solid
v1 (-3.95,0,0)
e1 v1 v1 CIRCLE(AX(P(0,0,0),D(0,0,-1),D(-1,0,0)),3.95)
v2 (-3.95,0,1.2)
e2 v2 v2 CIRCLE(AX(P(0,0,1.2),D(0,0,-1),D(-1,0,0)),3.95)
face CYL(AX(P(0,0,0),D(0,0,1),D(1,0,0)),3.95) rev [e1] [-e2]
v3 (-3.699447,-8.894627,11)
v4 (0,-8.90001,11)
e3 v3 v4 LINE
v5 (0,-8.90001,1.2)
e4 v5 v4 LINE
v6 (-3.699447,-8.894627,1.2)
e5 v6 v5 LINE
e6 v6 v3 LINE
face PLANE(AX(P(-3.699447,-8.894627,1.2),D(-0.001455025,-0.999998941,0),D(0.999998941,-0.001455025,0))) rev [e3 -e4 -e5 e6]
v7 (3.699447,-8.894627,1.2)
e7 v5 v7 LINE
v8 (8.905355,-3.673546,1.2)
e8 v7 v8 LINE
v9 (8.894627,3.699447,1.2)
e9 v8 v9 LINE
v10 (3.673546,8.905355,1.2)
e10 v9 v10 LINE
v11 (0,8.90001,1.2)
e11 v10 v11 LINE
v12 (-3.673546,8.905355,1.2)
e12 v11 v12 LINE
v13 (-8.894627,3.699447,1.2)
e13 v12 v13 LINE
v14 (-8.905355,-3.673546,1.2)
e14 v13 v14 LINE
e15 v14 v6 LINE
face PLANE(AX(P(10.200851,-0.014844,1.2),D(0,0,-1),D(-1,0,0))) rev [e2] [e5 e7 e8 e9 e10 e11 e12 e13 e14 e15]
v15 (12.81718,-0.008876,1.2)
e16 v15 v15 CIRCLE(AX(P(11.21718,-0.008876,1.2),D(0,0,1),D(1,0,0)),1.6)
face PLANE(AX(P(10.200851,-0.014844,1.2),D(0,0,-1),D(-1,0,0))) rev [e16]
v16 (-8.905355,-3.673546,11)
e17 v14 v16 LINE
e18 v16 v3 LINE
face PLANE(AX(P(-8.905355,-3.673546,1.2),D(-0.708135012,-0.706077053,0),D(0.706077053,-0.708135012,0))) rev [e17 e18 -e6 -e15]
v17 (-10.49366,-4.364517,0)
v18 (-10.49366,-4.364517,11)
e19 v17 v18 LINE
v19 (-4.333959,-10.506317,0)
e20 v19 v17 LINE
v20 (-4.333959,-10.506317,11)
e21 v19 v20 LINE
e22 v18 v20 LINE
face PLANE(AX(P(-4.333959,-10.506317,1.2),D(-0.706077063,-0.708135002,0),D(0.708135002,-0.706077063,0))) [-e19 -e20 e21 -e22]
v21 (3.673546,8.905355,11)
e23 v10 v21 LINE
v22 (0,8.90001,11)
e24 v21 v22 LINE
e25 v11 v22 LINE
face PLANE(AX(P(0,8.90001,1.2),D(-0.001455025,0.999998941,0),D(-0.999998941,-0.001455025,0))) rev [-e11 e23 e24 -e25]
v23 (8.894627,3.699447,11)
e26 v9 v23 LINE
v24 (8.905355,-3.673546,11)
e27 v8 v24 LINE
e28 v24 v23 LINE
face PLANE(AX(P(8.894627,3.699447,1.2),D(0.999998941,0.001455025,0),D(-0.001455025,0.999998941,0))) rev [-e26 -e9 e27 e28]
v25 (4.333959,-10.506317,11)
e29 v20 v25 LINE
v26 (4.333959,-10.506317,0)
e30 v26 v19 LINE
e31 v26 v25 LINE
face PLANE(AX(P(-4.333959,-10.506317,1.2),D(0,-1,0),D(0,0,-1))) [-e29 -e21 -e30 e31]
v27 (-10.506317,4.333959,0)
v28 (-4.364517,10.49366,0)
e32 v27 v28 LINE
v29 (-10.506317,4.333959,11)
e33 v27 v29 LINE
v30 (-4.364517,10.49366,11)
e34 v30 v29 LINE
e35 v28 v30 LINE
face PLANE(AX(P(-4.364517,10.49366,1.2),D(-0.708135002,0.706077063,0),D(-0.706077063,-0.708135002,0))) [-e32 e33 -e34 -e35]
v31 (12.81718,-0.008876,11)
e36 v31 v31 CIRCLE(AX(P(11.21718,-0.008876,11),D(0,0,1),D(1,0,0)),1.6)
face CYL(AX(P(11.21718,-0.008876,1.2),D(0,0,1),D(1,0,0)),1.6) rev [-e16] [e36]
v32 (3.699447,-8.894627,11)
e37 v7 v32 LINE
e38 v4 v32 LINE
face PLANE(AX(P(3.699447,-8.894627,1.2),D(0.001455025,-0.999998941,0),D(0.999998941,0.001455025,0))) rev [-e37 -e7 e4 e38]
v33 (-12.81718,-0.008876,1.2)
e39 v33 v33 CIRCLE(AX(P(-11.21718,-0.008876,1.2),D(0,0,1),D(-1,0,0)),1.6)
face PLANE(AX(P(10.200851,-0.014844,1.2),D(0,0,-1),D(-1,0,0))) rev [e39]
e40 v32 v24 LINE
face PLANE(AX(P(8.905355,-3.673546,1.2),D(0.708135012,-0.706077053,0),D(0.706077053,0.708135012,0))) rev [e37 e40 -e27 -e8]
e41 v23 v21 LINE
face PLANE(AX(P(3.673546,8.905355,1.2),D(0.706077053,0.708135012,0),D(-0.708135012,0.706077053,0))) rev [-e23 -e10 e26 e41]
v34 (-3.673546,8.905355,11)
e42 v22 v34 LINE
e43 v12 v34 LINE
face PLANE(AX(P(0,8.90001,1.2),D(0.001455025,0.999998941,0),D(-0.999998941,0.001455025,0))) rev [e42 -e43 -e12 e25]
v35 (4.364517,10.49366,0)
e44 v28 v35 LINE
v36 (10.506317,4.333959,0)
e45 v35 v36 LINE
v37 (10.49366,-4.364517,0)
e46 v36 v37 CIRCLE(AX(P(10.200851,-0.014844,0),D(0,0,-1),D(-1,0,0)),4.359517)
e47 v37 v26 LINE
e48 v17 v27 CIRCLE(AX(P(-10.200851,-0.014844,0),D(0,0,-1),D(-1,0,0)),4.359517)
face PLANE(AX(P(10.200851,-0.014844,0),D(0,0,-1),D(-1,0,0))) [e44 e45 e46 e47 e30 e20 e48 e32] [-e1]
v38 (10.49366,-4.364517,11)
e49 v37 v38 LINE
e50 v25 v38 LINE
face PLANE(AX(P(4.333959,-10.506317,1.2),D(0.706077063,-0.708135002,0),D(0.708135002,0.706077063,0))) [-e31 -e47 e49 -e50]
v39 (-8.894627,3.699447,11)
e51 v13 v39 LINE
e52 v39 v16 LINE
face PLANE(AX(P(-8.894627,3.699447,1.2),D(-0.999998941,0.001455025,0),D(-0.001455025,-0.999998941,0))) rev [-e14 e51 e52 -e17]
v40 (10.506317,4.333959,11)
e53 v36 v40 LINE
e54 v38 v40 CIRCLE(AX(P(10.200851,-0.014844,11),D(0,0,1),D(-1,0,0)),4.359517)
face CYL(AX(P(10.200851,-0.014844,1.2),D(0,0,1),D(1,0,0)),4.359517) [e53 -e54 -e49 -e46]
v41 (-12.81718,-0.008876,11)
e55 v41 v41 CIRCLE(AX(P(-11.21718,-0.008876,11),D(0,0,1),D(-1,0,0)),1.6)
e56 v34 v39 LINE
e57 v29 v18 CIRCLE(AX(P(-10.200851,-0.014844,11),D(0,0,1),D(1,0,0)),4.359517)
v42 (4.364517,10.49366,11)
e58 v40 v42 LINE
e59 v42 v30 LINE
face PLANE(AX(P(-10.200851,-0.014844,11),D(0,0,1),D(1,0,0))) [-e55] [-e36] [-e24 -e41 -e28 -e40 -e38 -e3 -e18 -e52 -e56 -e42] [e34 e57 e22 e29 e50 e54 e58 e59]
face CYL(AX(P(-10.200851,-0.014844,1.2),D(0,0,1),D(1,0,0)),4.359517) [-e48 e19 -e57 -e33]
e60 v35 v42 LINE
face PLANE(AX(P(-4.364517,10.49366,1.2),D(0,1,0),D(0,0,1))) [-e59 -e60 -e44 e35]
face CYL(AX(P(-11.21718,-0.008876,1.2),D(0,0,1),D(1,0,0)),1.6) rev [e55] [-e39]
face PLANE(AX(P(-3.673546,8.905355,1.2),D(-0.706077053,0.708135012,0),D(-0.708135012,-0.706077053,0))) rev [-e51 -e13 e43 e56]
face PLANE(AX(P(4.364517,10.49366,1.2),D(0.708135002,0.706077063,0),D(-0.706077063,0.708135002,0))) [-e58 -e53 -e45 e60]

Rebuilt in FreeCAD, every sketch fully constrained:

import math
import FreeCAD as App
import Part
import Sketcher
from FreeCAD import Vector
Q = App.Units.Quantity


def add_polygon(sketch, points):
    """Adds a closed chain of lines whose ends are joined by coincident constraints."""
    first, n = sketch.GeometryCount, len(points)
    for a, b in zip(points, points[1:] + points[:1]):
        sketch.addGeometry(Part.LineSegment(App.Vector(*a, 0), App.Vector(*b, 0)), False)
    for i in range(n):
        sketch.addConstraint(Sketcher.Constraint("Coincident", first + i, 2, first + (i + 1) % n, 1))

doc = App.newDocument("Part")
body = doc.addObject("PartDesign::Body", "Body")

# Sketch on XY plane
sketch1 = body.newObject("Sketcher::SketchObject", "Sketch")
sketch1.AttachmentSupport = (doc.getObject("XY_Plane"), [""])
sketch1.MapMode = "FlatFace"
sketch1.AttachmentOffset = App.Placement(Vector(0, 0, 11), App.Rotation())
sketch1.addGeometry(Part.LineSegment(Vector(4.3, -10.5, 0), Vector(10.5, -4.4, 0)), False)  # 0
sketch1.addGeometry(Part.ArcOfCircle(Part.Circle(Vector(10.2, 0, 0), Vector(0, 0, 1), 4.4), math.radians(-86), math.radians(86)), False)  # 1
sketch1.addGeometry(Part.LineSegment(Vector(10.5, 4.3, 0), Vector(4.4, 10.5, 0)), False)  # 2
sketch1.addGeometry(Part.LineSegment(Vector(4.4, 10.5, 0), Vector(-4.4, 10.5, 0)), False)  # 3
sketch1.addGeometry(Part.LineSegment(Vector(-4.4, 10.5, 0), Vector(-10.5, 4.3, 0)), False)  # 4
sketch1.addGeometry(Part.ArcOfCircle(Part.Circle(Vector(-10.2, 0, 0), Vector(0, 0, 1), 4.4), math.radians(94), math.radians(266)), False)  # 5
sketch1.addGeometry(Part.LineSegment(Vector(-10.5, -4.4, 0), Vector(-4.3, -10.5, 0)), False)  # 6
sketch1.addGeometry(Part.LineSegment(Vector(-4.3, -10.5, 0), Vector(4.3, -10.5, 0)), False)  # 7
sketch1.addGeometry(Part.Circle(Vector(-11.2, 0, 0), Vector(0, 0, 1), 1.6), False)  # 8
sketch1.addGeometry(Part.Circle(Vector(11.2, 0, 0), Vector(0, 0, 1), 1.6), False)  # 9
add_polygon(sketch1, [(-3.7, 8.9), (0, 8.9), (3.7, 8.9), (8.9, 3.7), (8.9, -3.7), (3.7, -8.9), (0, -8.9), (-3.7, -8.9), (-8.9, -3.7), (-8.9, 3.7)])  # lines 10-19
sketch1.addConstraint([
    Sketcher.Constraint("Coincident", 0, 2, 1, 1),
    Sketcher.Constraint("Coincident", 1, 2, 2, 1),
    Sketcher.Constraint("Coincident", 2, 2, 3, 1),
    Sketcher.Constraint("Coincident", 3, 2, 4, 1),
    Sketcher.Constraint("Coincident", 4, 2, 5, 1),
    Sketcher.Constraint("Coincident", 5, 2, 6, 1),
    Sketcher.Constraint("Coincident", 6, 2, 7, 1),
    Sketcher.Constraint("Coincident", 7, 2, 0, 1),
    Sketcher.Constraint("Horizontal", 3),
    Sketcher.Constraint("Horizontal", 7),
    Sketcher.Constraint("Equal", 1, 5),
    Sketcher.Constraint("Equal", 8, 9),
    Sketcher.Constraint("Symmetric", 10, 2, 15, 2, -1, 1),
    Sketcher.Constraint("Symmetric", 1, 3, 5, 3, -2),
    Sketcher.Constraint("Symmetric", 8, 3, 9, 3, -2),
    Sketcher.Constraint("Symmetric", 14, 2, 16, 2, -2),
    Sketcher.Constraint("Symmetric", 13, 2, 17, 2, -2),
    Sketcher.Constraint("Symmetric", 12, 2, 18, 2, -2),
    Sketcher.Constraint("Symmetric", 11, 2, 19, 2, -2),
    Sketcher.Constraint("PointOnObject", 10, 2, -2),
    Sketcher.Constraint("Perpendicular", 0, 2),
    Sketcher.Constraint("Perpendicular", 4, 6),
    Sketcher.Constraint("Parallel", 6, 12),
    Sketcher.Constraint("Perpendicular", 11, 13),
    Sketcher.Constraint("Perpendicular", 12, 14),
    Sketcher.Constraint("Perpendicular", 13, 15),
    Sketcher.Constraint("Parallel", 2, 17),
    Sketcher.Constraint("Horizontal", 1, 2, 4, 2),
    Sketcher.Constraint("Horizontal", 0, 2, 5, 2),
    Sketcher.Constraint("Equal", 0, 2),
    Sketcher.Constraint("Equal", 12, 13),
    Sketcher.Constraint("Equal", 13, 14),
    Sketcher.Constraint("Diameter", 8, Q("3.2 mm")),
    Sketcher.Constraint("Distance", 12, Q("7.373002 mm")),
    Sketcher.Constraint("Radius", 1, Q("4.359517 mm")),
    Sketcher.Constraint("DistanceX", 2, 2, 1, 2, Q("6.1418 mm")),
    Sketcher.Constraint("DistanceY", 1, 2, 2, 2, Q("6.159701 mm")),
    Sketcher.Constraint("DistanceY", 1, 3, 11, 2, Q("8.920198 mm")),
    Sketcher.Constraint("Distance", 10, Q("3.67355 mm")),
    Sketcher.Constraint("Distance", 15, Q("3.699451 mm")),
    Sketcher.Constraint("DistanceX", 3, 2, 3, 1, Q("8.729033 mm")),
    Sketcher.Constraint("DistanceX", 7, 1, 7, 2, Q("8.667918 mm")),
    Sketcher.Constraint("DistanceX", -1, 1, 1, 3, Q("10.200851 mm")),
    Sketcher.Constraint("DistanceX", 8, 3, -1, 1, Q("11.21718 mm")),
    Sketcher.Constraint("DistanceY", 0, 2, 9, 3, Q("4.35564 mm")),
])
pad1 = body.newObject("PartDesign::Pad", "Pad")
pad1.Profile = sketch1
pad1.Length = 9.8
pad1.Reversed = True

# Sketch on XY plane
sketch2 = body.newObject("Sketcher::SketchObject", "Sketch001")
sketch2.AttachmentSupport = (doc.getObject("XY_Plane"), [""])
sketch2.MapMode = "FlatFace"
sketch2.AttachmentOffset = App.Placement(Vector(0, 0, 1.2), App.Rotation())
sketch2.addGeometry([
    Part.LineSegment(Vector(-4.4, 10.5, 0), Vector(4.4, 10.5, 0)),  # 0
    Part.LineSegment(Vector(4.4, 10.5, 0), Vector(10.5, 4.3, 0)),  # 1
    Part.ArcOfCircle(Part.Circle(Vector(10.2, 0, 0), Vector(0, 0, 1), 4.4), math.radians(-86), math.radians(86)),  # 2
    Part.LineSegment(Vector(10.5, -4.4, 0), Vector(4.3, -10.5, 0)),  # 3
    Part.LineSegment(Vector(4.3, -10.5, 0), Vector(-4.3, -10.5, 0)),  # 4
    Part.LineSegment(Vector(-4.3, -10.5, 0), Vector(-10.5, -4.4, 0)),  # 5
    Part.ArcOfCircle(Part.Circle(Vector(-10.2, 0, 0), Vector(0, 0, 1), 4.4), math.radians(94), math.radians(266)),  # 6
    Part.LineSegment(Vector(-10.5, 4.3, 0), Vector(-4.4, 10.5, 0)),  # 7
    Part.Circle(Vector(0, 0, 0), Vector(0, 0, 1), 3.9),  # 8
], False)
sketch2.addConstraint([
    Sketcher.Constraint("Coincident", 0, 2, 1, 1),
    Sketcher.Constraint("Coincident", 1, 2, 2, 2),
    Sketcher.Constraint("Coincident", 2, 1, 3, 1),
    Sketcher.Constraint("Coincident", 3, 2, 4, 1),
    Sketcher.Constraint("Coincident", 4, 2, 5, 1),
    Sketcher.Constraint("Coincident", 5, 2, 6, 2),
    Sketcher.Constraint("Coincident", 6, 1, 7, 1),
    Sketcher.Constraint("Coincident", 7, 2, 0, 1),
    Sketcher.Constraint("Horizontal", 0),
    Sketcher.Constraint("Horizontal", 4),
    Sketcher.Constraint("Coincident", 8, 3, -1, 1),
    Sketcher.Constraint("Equal", 2, 6),
    Sketcher.Constraint("Symmetric", 2, 3, 6, 3, -2),
    Sketcher.Constraint("Perpendicular", 1, 3),
    Sketcher.Constraint("Perpendicular", 5, 7),
    Sketcher.Constraint("Horizontal", 2, 1, 5, 2),
    Sketcher.Constraint("Horizontal", 1, 2, 6, 1),
    Sketcher.Constraint("Equal", 1, 3),
    Sketcher.Constraint("Equal", 3, 5),
    Sketcher.Constraint("Diameter", 8, Q("7.9 mm")),
    Sketcher.Constraint("Radius", 2, Q("4.359517 mm")),
    Sketcher.Constraint("DistanceX", 0, 2, 1, 2, Q("6.1418 mm")),
    Sketcher.Constraint("DistanceY", 1, 2, 0, 2, Q("6.159701 mm")),
    Sketcher.Constraint("DistanceX", 0, 1, 0, 2, Q("8.729033 mm")),
    Sketcher.Constraint("DistanceX", 4, 2, 4, 1, Q("8.667918 mm")),
    Sketcher.Constraint("DistanceX", -1, 1, 2, 3, Q("10.200851 mm")),
    Sketcher.Constraint("DistanceY", -1, 1, 0, 2, Q("10.49366 mm")),
])
pad2 = body.newObject("PartDesign::Pad", "Pad001")
pad2.Profile = sketch2
pad2.Length = 1.2
pad2.Reversed = True

doc.recompute()
